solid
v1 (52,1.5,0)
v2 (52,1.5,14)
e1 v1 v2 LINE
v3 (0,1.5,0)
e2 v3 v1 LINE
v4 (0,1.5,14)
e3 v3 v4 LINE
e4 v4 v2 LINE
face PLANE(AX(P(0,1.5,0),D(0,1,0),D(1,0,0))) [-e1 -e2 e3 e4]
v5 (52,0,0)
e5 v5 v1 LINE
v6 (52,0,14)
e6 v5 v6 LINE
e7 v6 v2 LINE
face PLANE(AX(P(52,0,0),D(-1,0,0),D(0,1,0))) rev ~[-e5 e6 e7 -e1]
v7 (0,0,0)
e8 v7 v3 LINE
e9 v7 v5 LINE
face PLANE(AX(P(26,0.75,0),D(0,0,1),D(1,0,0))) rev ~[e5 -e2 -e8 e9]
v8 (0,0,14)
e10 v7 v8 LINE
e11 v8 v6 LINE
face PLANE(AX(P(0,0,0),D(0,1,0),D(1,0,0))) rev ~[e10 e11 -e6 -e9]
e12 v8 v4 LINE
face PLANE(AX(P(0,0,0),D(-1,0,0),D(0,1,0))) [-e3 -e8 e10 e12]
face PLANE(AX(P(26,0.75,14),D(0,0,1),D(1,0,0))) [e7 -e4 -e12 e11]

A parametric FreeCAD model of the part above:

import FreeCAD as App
import Part
import Sketcher

doc = App.newDocument("Part")
body = doc.addObject("PartDesign::Body", "Body")

sketch1 = body.newObject("Sketcher::SketchObject", "Sketch")
sketch1.AttachmentSupport = (doc.getObject("XY_Plane"), [""])
sketch1.MapMode = "FlatFace"
sketch1.addGeometry([
    Part.LineSegment(App.Vector(0, 1.5, 0), App.Vector(0, 0, 0)),
    Part.LineSegment(App.Vector(0, 0, 0), App.Vector(52, 0, 0)),
    Part.LineSegment(App.Vector(52, 0, 0), App.Vector(52, 1.5, 0)),
    Part.LineSegment(App.Vector(52, 1.5, 0), App.Vector(0, 1.5, 0)),
], False)
sketch1.addConstraint([
    Sketcher.Constraint("Coincident", 0, 2, 1, 1),
    Sketcher.Constraint("Coincident", 1, 2, 2, 1),
    Sketcher.Constraint("Coincident", 2, 2, 3, 1),
    Sketcher.Constraint("Coincident", 3, 2, 0, 1),
    Sketcher.Constraint("Vertical", 0),
    Sketcher.Constraint("Horizontal", 1),
    Sketcher.Constraint("Vertical", 2),
    Sketcher.Constraint("Horizontal", 3),
    Sketcher.Constraint("Coincident", 0, 2, -1, 1),
    Sketcher.Constraint("DistanceX", 1, 1, 1, 2, 52.0),
    Sketcher.Constraint("DistanceY", 0, 2, 0, 1, 1.5),
])
pad1 = body.newObject("PartDesign::Pad", "Pad")
pad1.Profile = sketch1
pad1.Length = 14

doc.recompute()
